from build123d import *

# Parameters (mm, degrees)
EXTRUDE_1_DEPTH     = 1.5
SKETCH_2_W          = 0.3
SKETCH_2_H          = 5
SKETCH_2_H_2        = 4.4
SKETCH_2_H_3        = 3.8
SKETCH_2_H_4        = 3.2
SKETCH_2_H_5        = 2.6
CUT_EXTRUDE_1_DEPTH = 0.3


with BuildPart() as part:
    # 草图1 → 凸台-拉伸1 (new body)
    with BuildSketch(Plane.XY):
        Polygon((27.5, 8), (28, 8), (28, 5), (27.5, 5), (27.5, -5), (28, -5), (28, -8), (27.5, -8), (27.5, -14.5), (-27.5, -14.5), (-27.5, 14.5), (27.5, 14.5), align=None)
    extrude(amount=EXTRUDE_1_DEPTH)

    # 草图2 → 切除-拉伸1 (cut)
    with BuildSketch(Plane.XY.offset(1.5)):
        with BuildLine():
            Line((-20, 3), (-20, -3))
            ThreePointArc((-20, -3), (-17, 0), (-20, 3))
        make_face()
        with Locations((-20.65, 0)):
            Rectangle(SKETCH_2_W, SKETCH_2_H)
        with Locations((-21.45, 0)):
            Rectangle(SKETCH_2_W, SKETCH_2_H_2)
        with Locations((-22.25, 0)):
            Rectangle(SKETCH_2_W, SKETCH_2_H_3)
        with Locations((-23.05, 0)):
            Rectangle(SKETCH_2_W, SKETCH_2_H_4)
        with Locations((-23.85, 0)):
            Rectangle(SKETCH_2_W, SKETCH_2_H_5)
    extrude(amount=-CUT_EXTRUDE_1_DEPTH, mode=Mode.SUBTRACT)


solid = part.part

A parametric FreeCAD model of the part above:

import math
import FreeCAD as App
import Part
import Sketcher

V = App.Vector

doc = App.newDocument("Part")
body = doc.addObject("PartDesign::Body", "Body")

sketch1 = body.newObject("Sketcher::SketchObject", "Sketch")
sketch1.AttachmentSupport = (doc.getObject("XY_Plane"), [""])
sketch1.MapMode = "FlatFace"
sketch1.addGeometry(Part.LineSegment(V(28, 8, 0), V(27.5, 8, 0)), False)
sketch1.addGeometry(Part.LineSegment(V(27.5, 8, 0), V(27.5, 14.5, 0)), False)
sketch1.addGeometry(Part.LineSegment(V(27.5, 14.5, 0), V(-27.5, 14.5, 0)), False)
sketch1.addGeometry(Part.LineSegment(V(-27.5, 14.5, 0), V(-27.5, -14.5, 0)), False)
sketch1.addGeometry(Part.LineSegment(V(-27.5, -14.5, 0), V(27.5, -14.5, 0)), False)
sketch1.addGeometry(Part.LineSegment(V(27.5, -14.5, 0), V(27.5, -8, 0)), False)
sketch1.addGeometry(Part.LineSegment(V(27.5, -8, 0), V(28, -8, 0)), False)
sketch1.addGeometry(Part.LineSegment(V(28, -8, 0), V(28, -5, 0)), False)
sketch1.addGeometry(Part.LineSegment(V(28, -5, 0), V(27.5, -5, 0)), False)
sketch1.addGeometry(Part.LineSegment(V(27.5, -5, 0), V(27.5, 5, 0)), False)
sketch1.addGeometry(Part.LineSegment(V(27.5, 5, 0), V(28, 5, 0)), False)
sketch1.addGeometry(Part.LineSegment(V(28, 5, 0), V(28, 8, 0)), False)
sketch1.addConstraint(Sketcher.Constraint("Coincident", 0, 2, 1, 1))
sketch1.addConstraint(Sketcher.Constraint("Coincident", 1, 2, 2, 1))
sketch1.addConstraint(Sketcher.Constraint("Coincident", 2, 2, 3, 1))
sketch1.addConstraint(Sketcher.Constraint("Coincident", 3, 2, 4, 1))
sketch1.addConstraint(Sketcher.Constraint("Coincident", 4, 2, 5, 1))
sketch1.addConstraint(Sketcher.Constraint("Coincident", 5, 2, 6, 1))
sketch1.addConstraint(Sketcher.Constraint("Coincident", 6, 2, 7, 1))
sketch1.addConstraint(Sketcher.Constraint("Coincident", 7, 2, 8, 1))
sketch1.addConstraint(Sketcher.Constraint("Coincident", 8, 2, 9, 1))
sketch1.addConstraint(Sketcher.Constraint("Coincident", 9, 2, 10, 1))
sketch1.addConstraint(Sketcher.Constraint("Coincident", 10, 2, 11, 1))
sketch1.addConstraint(Sketcher.Constraint("Coincident", 11, 2, 0, 1))
sketch1.addConstraint(Sketcher.Constraint("Horizontal", 0))
sketch1.addConstraint(Sketcher.Constraint("Vertical", 1))
sketch1.addConstraint(Sketcher.Constraint("Horizontal", 2))
sketch1.addConstraint(Sketcher.Constraint("Vertical", 3))
sketch1.addConstraint(Sketcher.Constraint("Horizontal", 4))
sketch1.addConstraint(Sketcher.Constraint("Vertical", 5))
sketch1.addConstraint(Sketcher.Constraint("Horizontal", 6))
sketch1.addConstraint(Sketcher.Constraint("Vertical", 7))
sketch1.addConstraint(Sketcher.Constraint("Horizontal", 8))
sketch1.addConstraint(Sketcher.Constraint("Vertical", 9))
sketch1.addConstraint(Sketcher.Constraint("Horizontal", 10))
sketch1.addConstraint(Sketcher.Constraint("Vertical", 11))
sketch1.addConstraint(Sketcher.Constraint("Symmetric", 1, 2, 3, 2, -1, 1))
sketch1.addConstraint(Sketcher.Constraint("Symmetric", 0, 2, 5, 2, -1))
sketch1.addConstraint(Sketcher.Constraint("Symmetric", 7, 2, 10, 2, -1))
sketch1.addConstraint(Sketcher.Constraint("Vertical", 5, 2, 8, 2))
sketch1.addConstraint(Sketcher.Constraint("DistanceX", 2, 2, 2, 1, 55.0))
sketch1.addConstraint(Sketcher.Constraint("DistanceY", 3, 2, 3, 1, 29.0))
sketch1.addConstraint(Sketcher.Constraint("DistanceY", 7, 1, 7, 2, 3.0))
sketch1.addConstraint(Sketcher.Constraint("DistanceY", 9, 1, 9, 2, 10.0))
sketch1.addConstraint(Sketcher.Constraint("DistanceX", 0, 2, 0, 1, 0.5))
pad1 = body.newObject("PartDesign::Pad", "Pad")
pad1.Profile = sketch1
pad1.Length = 1.5

sketch2 = body.newObject("Sketcher::SketchObject", "Sketch001")
sketch2.AttachmentSupport = (doc.getObject("XY_Plane"), [""])
sketch2.MapMode = "FlatFace"
sketch2.AttachmentOffset = App.Placement(V(0, 0, 1.5), App.Rotation())
sketch2.addGeometry(Part.LineSegment(V(-20, 3, 0), V(-20, -3, 0)), False)
sketch2.addGeometry(Part.ArcOfCircle(Part.Circle(V(-20, 0, 0), V(0, 0, 1), 3), math.radians(-90), math.radians(90)), False)
sketch2.addGeometry(Part.LineSegment(V(-20.8, 2.5, 0), V(-20.8, -2.5, 0)), False)
sketch2.addGeometry(Part.LineSegment(V(-20.8, -2.5, 0), V(-20.5, -2.5, 0)), False)
sketch2.addGeometry(Part.LineSegment(V(-20.5, -2.5, 0), V(-20.5, 2.5, 0)), False)
sketch2.addGeometry(Part.LineSegment(V(-20.5, 2.5, 0), V(-20.8, 2.5, 0)), False)
sketch2.addGeometry(Part.LineSegment(V(-21.6, 2.2, 0), V(-21.6, -2.2, 0)), False)
sketch2.addGeometry(Part.LineSegment(V(-21.6, -2.2, 0), V(-21.3, -2.2, 0)), False)
sketch2.addGeometry(Part.LineSegment(V(-21.3, -2.2, 0), V(-21.3, 2.2, 0)), False)
sketch2.addGeometry(Part.LineSegment(V(-21.3, 2.2, 0), V(-21.6, 2.2, 0)), False)
sketch2.addGeometry(Part.LineSegment(V(-22.4, 1.9, 0), V(-22.4, -1.9, 0)), False)
sketch2.addGeometry(Part.LineSegment(V(-22.4, -1.9, 0), V(-22.1, -1.9, 0)), False)
sketch2.addGeometry(Part.LineSegment(V(-22.1, -1.9, 0), V(-22.1, 1.9, 0)), False)
sketch2.addGeometry(Part.LineSegment(V(-22.1, 1.9, 0), V(-22.4, 1.9, 0)), False)
sketch2.addGeometry(Part.LineSegment(V(-23.2, 1.6, 0), V(-23.2, -1.6, 0)), False)
sketch2.addGeometry(Part.LineSegment(V(-23.2, -1.6, 0), V(-22.9, -1.6, 0)), False)
sketch2.addGeometry(Part.LineSegment(V(-22.9, -1.6, 0), V(-22.9, 1.6, 0)), False)
sketch2.addGeometry(Part.LineSegment(V(-22.9, 1.6, 0), V(-23.2, 1.6, 0)), False)
sketch2.addGeometry(Part.LineSegment(V(-24, 1.3, 0), V(-24, -1.3, 0)), False)
sketch2.addGeometry(Part.LineSegment(V(-24, -1.3, 0), V(-23.7, -1.3, 0)), False)
sketch2.addGeometry(Part.LineSegment(V(-23.7, -1.3, 0), V(-23.7, 1.3, 0)), False)
sketch2.addGeometry(Part.LineSegment(V(-23.7, 1.3, 0), V(-24, 1.3, 0)), False)
sketch2.addConstraint(Sketcher.Constraint("Coincident", 0, 1, 1, 2))
sketch2.addConstraint(Sketcher.Constraint("Coincident", 1, 1, 0, 2))
sketch2.addConstraint(Sketcher.Constraint("Coincident", 2, 2, 3, 1))
sketch2.addConstraint(Sketcher.Constraint("Coincident", 3, 2, 4, 1))
sketch2.addConstraint(Sketcher.Constraint("Coincident", 4, 2, 5, 1))
sketch2.addConstraint(Sketcher.Constraint("Coincident", 5, 2, 2, 1))
sketch2.addConstraint(Sketcher.Constraint("Coincident", 6, 2, 7, 1))
sketch2.addConstraint(Sketcher.Constraint("Coincident", 7, 2, 8, 1))
sketch2.addConstraint(Sketcher.Constraint("Coincident", 8, 2, 9, 1))
sketch2.addConstraint(Sketcher.Constraint("Coincident", 9, 2, 6, 1))
sketch2.addConstraint(Sketcher.Constraint("Coincident", 10, 2, 11, 1))
sketch2.addConstraint(Sketcher.Constraint("Coincident", 11, 2, 12, 1))
sketch2.addConstraint(Sketcher.Constraint("Coincident", 12, 2, 13, 1))
sketch2.addConstraint(Sketcher.Constraint("Coincident", 13, 2, 10, 1))
sketch2.addConstraint(Sketcher.Constraint("Coincident", 14, 2, 15, 1))
sketch2.addConstraint(Sketcher.Constraint("Coincident", 15, 2, 16, 1))
sketch2.addConstraint(Sketcher.Constraint("Coincident", 16, 2, 17, 1))
sketch2.addConstraint(Sketcher.Constraint("Coincident", 17, 2, 14, 1))
sketch2.addConstraint(Sketcher.Constraint("Coincident", 18, 2, 19, 1))
sketch2.addConstraint(Sketcher.Constraint("Coincident", 19, 2, 20, 1))
sketch2.addConstraint(Sketcher.Constraint("Coincident", 20, 2, 21, 1))
sketch2.addConstraint(Sketcher.Constraint("Coincident", 21, 2, 18, 1))
sketch2.addConstraint(Sketcher.Constraint("Vertical", 0))
sketch2.addConstraint(Sketcher.Constraint("Vertical", 2))
sketch2.addConstraint(Sketcher.Constraint("Horizontal", 3))
sketch2.addConstraint(Sketcher.Constraint("Vertical", 4))
sketch2.addConstraint(Sketcher.Constraint("Horizontal", 5))
sketch2.addConstraint(Sketcher.Constraint("Vertical", 6))
sketch2.addConstraint(Sketcher.Constraint("Horizontal", 7))
sketch2.addConstraint(Sketcher.Constraint("Vertical", 8))
sketch2.addConstraint(Sketcher.Constraint("Horizontal", 9))
sketch2.addConstraint(Sketcher.Constraint("Vertical", 10))
sketch2.addConstraint(Sketcher.Constraint("Horizontal", 11))
sketch2.addConstraint(Sketcher.Constraint("Vertical", 12))
sketch2.addConstraint(Sketcher.Constraint("Horizontal", 13))
sketch2.addConstraint(Sketcher.Constraint("Vertical", 14))
sketch2.addConstraint(Sketcher.Constraint("Horizontal", 15))
sketch2.addConstraint(Sketcher.Constraint("Vertical", 16))
sketch2.addConstraint(Sketcher.Constraint("Horizontal", 17))
sketch2.addConstraint(Sketcher.Constraint("Vertical", 18))
sketch2.addConstraint(Sketcher.Constraint("Horizontal", 19))
sketch2.addConstraint(Sketcher.Constraint("Vertical", 20))
sketch2.addConstraint(Sketcher.Constraint("Horizontal", 21))
sketch2.addConstraint(Sketcher.Constraint("PointOnObject", 1, 3, -1))
sketch2.addConstraint(Sketcher.Constraint("Vertical", 1, 3, 0, 1))
sketch2.addConstraint(Sketcher.Constraint("Equal", 5, 7))
sketch2.addConstraint(Sketcher.Constraint("Equal", 9, 11))
sketch2.addConstraint(Sketcher.Constraint("Equal", 13, 15))
sketch2.addConstraint(Sketcher.Constraint("Equal", 17, 19))
sketch2.addConstraint(Sketcher.Constraint("Radius", 1, 3.0))
sketch2.addConstraint(Sketcher.Constraint("DistanceY", 2, 2, 2, 1, 5.0))
sketch2.addConstraint(Sketcher.Constraint("DistanceX", 3, 1, 3, 2, 0.3))
sketch2.addConstraint(Sketcher.Constraint("DistanceY", 6, 2, 6, 1, 4.4))
sketch2.addConstraint(Sketcher.Constraint("DistanceY", 10, 2, 10, 1, 3.8))
sketch2.addConstraint(Sketcher.Constraint("DistanceY", 14, 2, 14, 1, 3.2))
sketch2.addConstraint(Sketcher.Constraint("DistanceY", 18, 2, 18, 1, 2.6))
sketch2.addConstraint(Sketcher.Constraint("DistanceX", 1, 3, -1, 1, 20.0))
sketch2.addConstraint(Sketcher.Constraint("DistanceX", 18, 2, -1, 1, 24.0))
sketch2.addConstraint(Sketcher.Constraint("DistanceX", 2, 2, -1, 1, 20.8))
sketch2.addConstraint(Sketcher.Constraint("DistanceY", 2, 2, -1, 1, 2.5))
sketch2.addConstraint(Sketcher.Constraint("DistanceX", 6, 2, -1, 1, 21.6))
sketch2.addConstraint(Sketcher.Constraint("DistanceY", 6, 2, -1, 1, 2.2))
sketch2.addConstraint(Sketcher.Constraint("DistanceX", 10, 2, -1, 1, 22.4))
sketch2.addConstraint(Sketcher.Constraint("DistanceY", 10, 2, -1, 1, 1.9))
sketch2.addConstraint(Sketcher.Constraint("DistanceX", 14, 2, -1, 1, 23.2))
sketch2.addConstraint(Sketcher.Constraint("DistanceY", 14, 2, -1, 1, 1.6))
sketch2.addConstraint(Sketcher.Constraint("DistanceY", 18, 2, -1, 1, 1.3))
pocket1 = body.newObject("PartDesign::Pocket", "Pocket")
pocket1.Profile = sketch2
pocket1.Length = 0.3

doc.recompute()
